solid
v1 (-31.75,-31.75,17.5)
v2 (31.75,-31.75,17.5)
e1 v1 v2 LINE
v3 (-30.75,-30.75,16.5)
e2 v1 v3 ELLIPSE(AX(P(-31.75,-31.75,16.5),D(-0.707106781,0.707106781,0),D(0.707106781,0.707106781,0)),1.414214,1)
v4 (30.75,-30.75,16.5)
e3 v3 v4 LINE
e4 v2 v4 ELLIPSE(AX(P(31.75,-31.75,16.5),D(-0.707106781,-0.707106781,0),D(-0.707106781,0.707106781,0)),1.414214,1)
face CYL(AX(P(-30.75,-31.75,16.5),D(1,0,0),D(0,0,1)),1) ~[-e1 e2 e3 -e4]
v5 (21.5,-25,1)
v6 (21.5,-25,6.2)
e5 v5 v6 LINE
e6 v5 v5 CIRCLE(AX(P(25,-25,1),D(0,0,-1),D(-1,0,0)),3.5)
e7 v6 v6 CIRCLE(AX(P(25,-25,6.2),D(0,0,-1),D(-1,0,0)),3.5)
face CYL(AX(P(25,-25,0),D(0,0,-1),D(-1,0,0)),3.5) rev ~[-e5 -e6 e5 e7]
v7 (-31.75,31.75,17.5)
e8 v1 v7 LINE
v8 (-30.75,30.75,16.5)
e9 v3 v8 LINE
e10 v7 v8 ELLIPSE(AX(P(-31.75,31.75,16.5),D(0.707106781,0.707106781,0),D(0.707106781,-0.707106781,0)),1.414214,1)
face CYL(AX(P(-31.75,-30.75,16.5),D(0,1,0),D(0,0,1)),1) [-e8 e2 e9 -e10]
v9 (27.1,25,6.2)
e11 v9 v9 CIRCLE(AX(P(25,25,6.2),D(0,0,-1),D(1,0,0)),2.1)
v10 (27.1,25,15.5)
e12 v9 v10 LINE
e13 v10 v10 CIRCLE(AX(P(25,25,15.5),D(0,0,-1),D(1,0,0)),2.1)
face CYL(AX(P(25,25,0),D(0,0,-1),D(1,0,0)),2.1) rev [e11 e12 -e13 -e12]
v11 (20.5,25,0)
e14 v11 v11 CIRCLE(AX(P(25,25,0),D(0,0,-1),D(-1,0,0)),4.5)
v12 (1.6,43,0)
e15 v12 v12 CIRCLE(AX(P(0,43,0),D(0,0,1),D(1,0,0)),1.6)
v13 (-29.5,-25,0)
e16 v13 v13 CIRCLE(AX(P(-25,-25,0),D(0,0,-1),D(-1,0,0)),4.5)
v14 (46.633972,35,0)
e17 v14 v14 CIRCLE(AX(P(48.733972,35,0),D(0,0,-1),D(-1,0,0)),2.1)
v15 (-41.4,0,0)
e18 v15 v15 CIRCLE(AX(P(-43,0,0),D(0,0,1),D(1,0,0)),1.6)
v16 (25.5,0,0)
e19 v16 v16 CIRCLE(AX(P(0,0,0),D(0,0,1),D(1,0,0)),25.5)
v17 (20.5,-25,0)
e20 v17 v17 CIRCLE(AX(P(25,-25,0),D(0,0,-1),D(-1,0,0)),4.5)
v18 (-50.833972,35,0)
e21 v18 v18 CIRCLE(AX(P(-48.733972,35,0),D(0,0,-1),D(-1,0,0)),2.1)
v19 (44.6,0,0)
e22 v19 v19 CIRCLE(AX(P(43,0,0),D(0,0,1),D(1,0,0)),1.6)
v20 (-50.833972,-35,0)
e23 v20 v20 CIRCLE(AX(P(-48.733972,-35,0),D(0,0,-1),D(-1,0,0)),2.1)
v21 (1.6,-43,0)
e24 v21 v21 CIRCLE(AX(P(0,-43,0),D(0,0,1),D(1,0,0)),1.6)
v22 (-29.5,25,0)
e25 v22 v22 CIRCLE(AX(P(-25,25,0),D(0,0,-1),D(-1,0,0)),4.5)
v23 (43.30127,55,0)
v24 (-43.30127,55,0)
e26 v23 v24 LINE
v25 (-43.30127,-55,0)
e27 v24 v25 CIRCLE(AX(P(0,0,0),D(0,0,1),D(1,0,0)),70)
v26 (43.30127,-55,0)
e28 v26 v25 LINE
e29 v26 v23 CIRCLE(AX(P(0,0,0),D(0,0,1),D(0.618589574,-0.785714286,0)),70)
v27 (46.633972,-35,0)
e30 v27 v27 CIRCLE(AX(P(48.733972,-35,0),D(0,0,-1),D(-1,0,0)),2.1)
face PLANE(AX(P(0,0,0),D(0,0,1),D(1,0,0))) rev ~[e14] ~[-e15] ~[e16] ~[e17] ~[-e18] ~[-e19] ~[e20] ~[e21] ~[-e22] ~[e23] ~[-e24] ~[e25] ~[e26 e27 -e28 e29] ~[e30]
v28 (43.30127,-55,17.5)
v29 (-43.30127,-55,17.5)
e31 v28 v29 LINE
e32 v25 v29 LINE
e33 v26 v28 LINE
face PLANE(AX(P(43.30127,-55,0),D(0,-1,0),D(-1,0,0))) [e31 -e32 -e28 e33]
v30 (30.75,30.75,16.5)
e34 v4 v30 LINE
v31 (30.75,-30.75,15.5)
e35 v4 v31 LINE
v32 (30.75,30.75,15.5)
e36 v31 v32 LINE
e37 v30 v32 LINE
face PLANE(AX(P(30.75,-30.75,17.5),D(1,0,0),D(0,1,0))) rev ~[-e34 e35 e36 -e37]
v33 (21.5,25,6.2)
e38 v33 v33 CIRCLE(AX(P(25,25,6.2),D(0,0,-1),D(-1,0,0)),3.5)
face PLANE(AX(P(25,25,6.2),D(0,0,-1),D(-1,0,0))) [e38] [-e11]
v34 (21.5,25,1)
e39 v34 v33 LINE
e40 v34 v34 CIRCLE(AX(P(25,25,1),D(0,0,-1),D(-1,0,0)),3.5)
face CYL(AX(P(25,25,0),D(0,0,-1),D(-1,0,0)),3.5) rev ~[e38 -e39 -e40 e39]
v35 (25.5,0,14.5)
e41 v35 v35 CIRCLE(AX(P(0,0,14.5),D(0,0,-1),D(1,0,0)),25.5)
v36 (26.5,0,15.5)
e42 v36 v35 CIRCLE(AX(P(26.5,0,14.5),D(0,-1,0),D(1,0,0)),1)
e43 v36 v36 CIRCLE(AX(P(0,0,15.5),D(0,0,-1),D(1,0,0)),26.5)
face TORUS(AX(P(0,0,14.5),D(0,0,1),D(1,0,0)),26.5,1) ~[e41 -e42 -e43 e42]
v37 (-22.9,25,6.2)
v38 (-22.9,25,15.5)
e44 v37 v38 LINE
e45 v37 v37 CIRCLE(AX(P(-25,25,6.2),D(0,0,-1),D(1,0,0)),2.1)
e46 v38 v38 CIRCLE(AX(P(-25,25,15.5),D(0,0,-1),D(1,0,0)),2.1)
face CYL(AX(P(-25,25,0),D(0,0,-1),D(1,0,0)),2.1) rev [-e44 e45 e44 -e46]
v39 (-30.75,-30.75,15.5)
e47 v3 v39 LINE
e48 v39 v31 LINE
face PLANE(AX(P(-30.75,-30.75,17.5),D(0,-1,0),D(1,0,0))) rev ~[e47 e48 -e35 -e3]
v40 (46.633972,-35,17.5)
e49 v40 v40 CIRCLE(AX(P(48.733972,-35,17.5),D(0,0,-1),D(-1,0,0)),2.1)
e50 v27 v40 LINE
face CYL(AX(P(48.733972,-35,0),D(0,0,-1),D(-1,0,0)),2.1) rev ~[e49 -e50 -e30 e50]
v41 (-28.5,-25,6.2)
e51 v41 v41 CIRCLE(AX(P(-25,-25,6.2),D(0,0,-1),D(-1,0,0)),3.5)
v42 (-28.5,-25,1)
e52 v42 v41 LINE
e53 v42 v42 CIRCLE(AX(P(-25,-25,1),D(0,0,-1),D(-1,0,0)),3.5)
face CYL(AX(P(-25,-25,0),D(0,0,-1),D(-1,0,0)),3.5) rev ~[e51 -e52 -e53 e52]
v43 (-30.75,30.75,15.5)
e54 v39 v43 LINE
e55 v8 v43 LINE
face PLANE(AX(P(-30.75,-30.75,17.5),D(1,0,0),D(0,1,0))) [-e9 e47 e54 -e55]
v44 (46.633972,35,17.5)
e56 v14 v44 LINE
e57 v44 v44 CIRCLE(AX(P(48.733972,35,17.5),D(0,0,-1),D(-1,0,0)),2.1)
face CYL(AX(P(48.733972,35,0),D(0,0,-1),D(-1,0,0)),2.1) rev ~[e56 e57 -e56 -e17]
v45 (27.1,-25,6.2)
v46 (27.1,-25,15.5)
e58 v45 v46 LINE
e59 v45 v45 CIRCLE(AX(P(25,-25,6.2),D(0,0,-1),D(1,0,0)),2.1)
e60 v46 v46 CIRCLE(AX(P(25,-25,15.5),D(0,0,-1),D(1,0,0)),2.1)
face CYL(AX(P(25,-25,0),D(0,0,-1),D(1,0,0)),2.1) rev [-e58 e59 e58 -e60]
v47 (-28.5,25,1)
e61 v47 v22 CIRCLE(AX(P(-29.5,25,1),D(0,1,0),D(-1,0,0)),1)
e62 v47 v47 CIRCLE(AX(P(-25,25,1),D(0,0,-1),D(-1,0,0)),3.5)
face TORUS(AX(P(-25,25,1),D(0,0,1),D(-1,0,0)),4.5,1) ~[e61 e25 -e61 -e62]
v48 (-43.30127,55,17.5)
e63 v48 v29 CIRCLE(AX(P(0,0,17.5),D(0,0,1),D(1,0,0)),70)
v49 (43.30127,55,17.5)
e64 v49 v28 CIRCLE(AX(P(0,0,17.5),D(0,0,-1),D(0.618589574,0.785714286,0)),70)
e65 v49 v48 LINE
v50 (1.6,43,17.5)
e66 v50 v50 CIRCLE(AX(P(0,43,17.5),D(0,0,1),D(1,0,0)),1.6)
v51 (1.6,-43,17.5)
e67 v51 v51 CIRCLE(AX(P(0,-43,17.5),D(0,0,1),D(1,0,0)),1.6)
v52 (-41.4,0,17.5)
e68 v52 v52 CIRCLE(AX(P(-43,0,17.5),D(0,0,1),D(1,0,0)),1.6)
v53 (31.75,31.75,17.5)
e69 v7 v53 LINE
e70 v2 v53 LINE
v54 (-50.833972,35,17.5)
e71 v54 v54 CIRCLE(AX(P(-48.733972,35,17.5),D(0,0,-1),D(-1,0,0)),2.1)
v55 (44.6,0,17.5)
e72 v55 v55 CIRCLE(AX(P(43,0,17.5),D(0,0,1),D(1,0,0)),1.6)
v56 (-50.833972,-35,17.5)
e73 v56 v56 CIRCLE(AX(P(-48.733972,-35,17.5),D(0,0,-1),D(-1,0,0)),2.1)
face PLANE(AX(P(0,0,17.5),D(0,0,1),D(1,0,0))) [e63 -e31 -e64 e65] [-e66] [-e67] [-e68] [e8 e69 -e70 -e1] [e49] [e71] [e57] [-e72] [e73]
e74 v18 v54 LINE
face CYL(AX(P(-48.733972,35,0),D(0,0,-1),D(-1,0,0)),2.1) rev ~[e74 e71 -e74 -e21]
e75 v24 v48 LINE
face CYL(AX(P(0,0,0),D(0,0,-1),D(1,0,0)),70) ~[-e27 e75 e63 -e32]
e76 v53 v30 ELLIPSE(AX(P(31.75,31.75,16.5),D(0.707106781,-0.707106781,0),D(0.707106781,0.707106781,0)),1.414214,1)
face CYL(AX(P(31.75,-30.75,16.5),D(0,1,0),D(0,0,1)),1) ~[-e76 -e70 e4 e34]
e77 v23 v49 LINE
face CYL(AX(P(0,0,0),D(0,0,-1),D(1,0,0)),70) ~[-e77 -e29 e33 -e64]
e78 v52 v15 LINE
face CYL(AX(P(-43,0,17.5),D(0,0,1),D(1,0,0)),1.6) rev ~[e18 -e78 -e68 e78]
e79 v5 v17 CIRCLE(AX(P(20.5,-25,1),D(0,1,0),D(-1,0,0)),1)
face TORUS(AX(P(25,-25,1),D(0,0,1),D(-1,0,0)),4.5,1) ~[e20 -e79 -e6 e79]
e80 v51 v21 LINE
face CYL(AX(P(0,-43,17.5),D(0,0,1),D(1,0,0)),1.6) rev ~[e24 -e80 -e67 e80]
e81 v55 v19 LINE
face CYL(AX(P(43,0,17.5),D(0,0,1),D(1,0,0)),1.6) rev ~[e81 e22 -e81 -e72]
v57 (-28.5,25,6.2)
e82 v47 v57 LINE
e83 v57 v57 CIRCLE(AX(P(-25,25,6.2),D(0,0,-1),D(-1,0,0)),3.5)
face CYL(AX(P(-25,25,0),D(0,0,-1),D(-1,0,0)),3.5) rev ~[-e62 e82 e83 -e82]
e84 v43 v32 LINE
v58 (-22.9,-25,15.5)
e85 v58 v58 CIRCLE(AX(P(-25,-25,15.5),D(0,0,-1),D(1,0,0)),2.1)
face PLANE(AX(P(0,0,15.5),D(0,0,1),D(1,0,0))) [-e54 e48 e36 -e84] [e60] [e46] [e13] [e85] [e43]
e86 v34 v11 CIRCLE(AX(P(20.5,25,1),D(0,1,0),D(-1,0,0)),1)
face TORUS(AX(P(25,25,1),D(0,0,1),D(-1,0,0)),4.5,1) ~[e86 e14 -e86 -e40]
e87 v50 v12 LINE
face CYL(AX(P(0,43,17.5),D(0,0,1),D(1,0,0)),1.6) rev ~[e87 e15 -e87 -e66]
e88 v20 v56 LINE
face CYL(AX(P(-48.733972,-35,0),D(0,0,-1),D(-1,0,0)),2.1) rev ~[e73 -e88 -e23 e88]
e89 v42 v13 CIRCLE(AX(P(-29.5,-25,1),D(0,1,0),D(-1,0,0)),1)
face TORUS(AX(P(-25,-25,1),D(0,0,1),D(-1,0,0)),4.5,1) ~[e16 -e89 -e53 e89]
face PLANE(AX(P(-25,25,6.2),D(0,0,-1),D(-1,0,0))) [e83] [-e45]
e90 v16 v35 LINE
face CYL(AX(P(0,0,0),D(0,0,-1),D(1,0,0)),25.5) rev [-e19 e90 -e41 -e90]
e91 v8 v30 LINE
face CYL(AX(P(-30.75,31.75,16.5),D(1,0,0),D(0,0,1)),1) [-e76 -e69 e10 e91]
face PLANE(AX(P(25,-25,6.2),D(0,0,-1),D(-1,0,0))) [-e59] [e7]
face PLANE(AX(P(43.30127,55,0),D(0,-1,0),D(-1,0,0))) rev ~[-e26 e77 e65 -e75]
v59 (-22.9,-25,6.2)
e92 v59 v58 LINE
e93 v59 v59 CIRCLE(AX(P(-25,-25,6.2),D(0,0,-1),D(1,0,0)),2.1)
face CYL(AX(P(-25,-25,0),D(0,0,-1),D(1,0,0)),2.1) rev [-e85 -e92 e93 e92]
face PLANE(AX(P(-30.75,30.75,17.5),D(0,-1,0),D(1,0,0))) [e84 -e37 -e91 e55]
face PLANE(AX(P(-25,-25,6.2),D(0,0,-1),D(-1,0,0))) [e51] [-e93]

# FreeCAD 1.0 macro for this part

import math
import FreeCAD as App
import Part
import Sketcher


def edges_at(feature, points):
    """Names of the edges that pass closest to the given points."""
    edges = feature.Shape.Edges
    near = lambda p: min(range(len(edges)), key=lambda i: edges[i].distToShape(Part.Vertex(*p))[0])
    return sorted({f"Edge{near(p) + 1}" for p in points})


def add_polygon(sketch, points):
    """Adds a closed chain of lines whose ends are joined by coincident constraints."""
    first, n = sketch.GeometryCount, len(points)
    for a, b in zip(points, points[1:] + points[:1]):
        sketch.addGeometry(Part.LineSegment(App.Vector(*a, 0), App.Vector(*b, 0)), False)
    for i in range(n):
        sketch.addConstraint(Sketcher.Constraint("Coincident", first + i, 2, first + (i + 1) % n, 1))

doc = App.newDocument("Part")
body = doc.addObject("PartDesign::Body", "Body")

# Sketch on XY plane
sketch1 = doc.addObject("Sketcher::SketchObject", "Sketch")
body.addObject(sketch1)
sketch1.AttachmentSupport = (doc.XY_Plane, [""])
sketch1.MapMode = "FlatFace"
sketch1.addGeometry([
    Part.Circle(App.Vector(0, 0, 0), App.Vector(0, 0, 1), 70),  # 0
    Part.Circle(App.Vector(-25, -25, 0), App.Vector(0, 0, 1), 2.1),  # 1
    Part.Circle(App.Vector(25, -25, 0), App.Vector(0, 0, 1), 2.1),  # 2
    Part.Circle(App.Vector(-25, 25, 0), App.Vector(0, 0, 1), 2.1),  # 3
    Part.Circle(App.Vector(0, 0, 0), App.Vector(0, 0, 1), 25.5),  # 4
    Part.Circle(App.Vector(25, 25, 0), App.Vector(0, 0, 1), 2.1),  # 5
], False)
sketch1.addConstraint([
    Sketcher.Constraint("Coincident", 0, 3, -1, 1),
    Sketcher.Constraint("Coincident", 4, 3, -1, 1),
    Sketcher.Constraint("Equal", 1, 2),
    Sketcher.Constraint("Equal", 2, 3),
    Sketcher.Constraint("Equal", 3, 5),
    Sketcher.Constraint("Symmetric", 2, 3, 3, 3, -1, 1),
    Sketcher.Constraint("Symmetric", 1, 3, 5, 3, -1, 1),
    Sketcher.Constraint("Symmetric", 1, 3, 2, 3, -2),
    Sketcher.Constraint("Diameter", 0, 140.0),
    Sketcher.Constraint("Diameter", 4, 51.0),
    Sketcher.Constraint("Diameter", 1, 4.2),
    Sketcher.Constraint("DistanceX", 1, 3, -1, 1, 25.0),
    Sketcher.Constraint("DistanceY", 1, 3, -1, 1, 25.0),
])
pad1 = doc.addObject("PartDesign::Pad", "Pad")
body.addObject(pad1)
pad1.Profile = sketch1
pad1.Length = 17.5

# Sketch on XY plane
sketch2 = doc.addObject("Sketcher::SketchObject", "Sketch001")
body.addObject(sketch2)
sketch2.AttachmentSupport = (doc.XY_Plane, [""])
sketch2.MapMode = "FlatFace"
sketch2.AttachmentOffset = App.Placement(App.Vector(0, 0, 17.5), App.Rotation())
add_polygon(sketch2, [(-31, 31), (-31, -31), (31, -31), (31, 31)])  # lines 0-3
sketch2.addConstraint([
    Sketcher.Constraint("Vertical", 0),
    Sketcher.Constraint("Horizontal", 1),
    Sketcher.Constraint("Vertical", 2),
    Sketcher.Constraint("Horizontal", 3),
    Sketcher.Constraint("Symmetric", 0, 2, 2, 2, -1, 1),
    Sketcher.Constraint("Equal", 3, 0),
    Sketcher.Constraint("DistanceX", 1, 1, 1, 2, 61.5),
])
pocket1 = doc.addObject("PartDesign::Pocket", "Pocket")
body.addObject(pocket1)
pocket1.Profile = sketch2
pocket1.Length = 2

# Sketch on XY plane
sketch3 = doc.addObject("Sketcher::SketchObject", "Sketch002")
body.addObject(sketch3)
sketch3.AttachmentSupport = (doc.XY_Plane, [""])
sketch3.MapMode = "FlatFace"
sketch3.AttachmentOffset = App.Placement(App.Vector(0, 0, 17.5), App.Rotation())
sketch3.addGeometry([
    Part.Circle(App.Vector(0, 43, 0), App.Vector(0, 0, 1), 1.6),
    Part.Circle(App.Vector(-43, 0, 0), App.Vector(0, 0, 1), 1.6),
    Part.Circle(App.Vector(43, 0, 0), App.Vector(0, 0, 1), 1.6),
    Part.Circle(App.Vector(0, -43, 0), App.Vector(0, 0, 1), 1.6),
], False)
sketch3.addConstraint([
    Sketcher.Constraint("Equal", 0, 1),
    Sketcher.Constraint("Equal", 1, 2),
    Sketcher.Constraint("Equal", 2, 3),
    Sketcher.Constraint("Symmetric", 1, 3, 2, 3, -1, 1),
    Sketcher.Constraint("Symmetric", 0, 3, 3, 3, -1, 1),
    Sketcher.Constraint("PointOnObject", 0, 3, -2),
    Sketcher.Constraint("PointOnObject", 1, 3, -1),
    Sketcher.Constraint("Diameter", 0, 3.2),
    Sketcher.Constraint("DistanceY", -1, 1, 0, 3, 43.0),
    Sketcher.Constraint("DistanceX", 1, 3, -1, 1, 43.0),
])
pocket2 = doc.addObject("PartDesign::Pocket", "Pocket001")
body.addObject(pocket2)
pocket2.Profile = sketch3
pocket2.Type = "ThroughAll"

# Sketch on XY plane
sketch4 = doc.addObject("Sketcher::SketchObject", "Sketch003")
body.addObject(sketch4)
sketch4.AttachmentSupport = (doc.XY_Plane, [""])
sketch4.MapMode = "FlatFace"
sketch4.addGeometry([
    Part.Circle(App.Vector(25, 25, 0), App.Vector(0, 0, 1), 3.5),
    Part.Circle(App.Vector(-25, 25, 0), App.Vector(0, 0, 1), 3.5),
    Part.Circle(App.Vector(-25, -25, 0), App.Vector(0, 0, 1), 3.5),
    Part.Circle(App.Vector(25, -25, 0), App.Vector(0, 0, 1), 3.5),
], False)
sketch4.addConstraint([
    Sketcher.Constraint("Equal", 0, 1),
    Sketcher.Constraint("Equal", 1, 2),
    Sketcher.Constraint("Equal", 2, 3),
    Sketcher.Constraint("Symmetric", 0, 3, 2, 3, -1, 1),
    Sketcher.Constraint("Symmetric", 1, 3, 3, 3, -1, 1),
    Sketcher.Constraint("Symmetric", 0, 3, 1, 3, -2),
    Sketcher.Constraint("Diameter", 0, 7.0),
    Sketcher.Constraint("DistanceX", -1, 1, 0, 3, 25.0),
    Sketcher.Constraint("DistanceY", -1, 1, 0, 3, 25.0),
])
pocket3 = doc.addObject("PartDesign::Pocket", "Pocket002")
body.addObject(pocket3)
pocket3.Profile = sketch4
pocket3.Length = 6.2
pocket3.Reversed = True

# Sketch on XY plane
sketch5 = doc.addObject("Sketcher::SketchObject", "Sketch004")
body.addObject(sketch5)
sketch5.AttachmentSupport = (doc.XY_Plane, [""])
sketch5.MapMode = "FlatFace"
sketch5.addGeometry([
    Part.Circle(App.Vector(48.7, 35, 0), App.Vector(0, 0, 1), 2.1),  # 0
    Part.Circle(App.Vector(-48.7, 35, 0), App.Vector(0, 0, 1), 2.1),  # 1
    Part.Circle(App.Vector(-48.7, -35, 0), App.Vector(0, 0, 1), 2.1),  # 2
    Part.Circle(App.Vector(48.7, -35, 0), App.Vector(0, 0, 1), 2.1),  # 3
    Part.LineSegment(App.Vector(-43.3, -55, 0), App.Vector(43.3, -55, 0)),  # 4
    Part.ArcOfCircle(Part.Circle(App.Vector(0, 0, 0), App.Vector(0, 0, 1), 70), math.radians(-128), math.radians(-52)),  # 5
    Part.LineSegment(App.Vector(43.3, 55, 0), App.Vector(-43.3, 55, 0)),  # 6
    Part.ArcOfCircle(Part.Circle(App.Vector(0, 0, 0), App.Vector(0, 0, 1), 70), math.radians(52), math.radians(128)),  # 7
], False)
sketch5.addConstraint([
    Sketcher.Constraint("Coincident", 4, 1, 5, 1),
    Sketcher.Constraint("Coincident", 5, 2, 4, 2),
    Sketcher.Constraint("Coincident", 6, 1, 7, 1),
    Sketcher.Constraint("Coincident", 7, 2, 6, 2),
    Sketcher.Constraint("Horizontal", 4),
    Sketcher.Constraint("Horizontal", 6),
    Sketcher.Constraint("Coincident", 5, 3, -1, 1),
    Sketcher.Constraint("Coincident", 7, 3, -1, 1),
    Sketcher.Constraint("Equal", 0, 1),
    Sketcher.Constraint("Equal", 1, 2),
    Sketcher.Constraint("Equal", 2, 3),
    Sketcher.Constraint("Equal", 5, 7),
    Sketcher.Constraint("Symmetric", 0, 3, 2, 3, -1, 1),
    Sketcher.Constraint("Symmetric", 1, 3, 3, 3, -1, 1),
    Sketcher.Constraint("Symmetric", 0, 3, 1, 3, -2),
    Sketcher.Constraint("Vertical", 5, 2, 6, 1),
    Sketcher.Constraint("Radius", 5, 70.0),
    Sketcher.Constraint("Diameter", 0, 4.2),
    Sketcher.Constraint("DistanceY", -1, 1, 0, 3, 35.0),
    Sketcher.Constraint("DistanceY", 4, 1, -1, 1, 55.0),
    Sketcher.Constraint("DistanceX", 2, 3, 4, 1, 5.432702),
])
pocket4 = doc.addObject("PartDesign::Pocket", "Pocket003")
body.addObject(pocket4)
pocket4.Profile = sketch5
pocket4.Length = 17.5
pocket4.Reversed = True
doc.recompute()

fillet = doc.addObject("PartDesign::Fillet", "Fillet")
body.addObject(fillet)
fillet.Base = (pocket4, edges_at(pocket4, [
    (-25.5, 0, 15.5),
    (30.75, 0, 17.5),
    (0, 30.75, 17.5),
    (-30.75, 0, 17.5),
    (0, -30.75, 17.5),
    (28.5, 25, 0),
    (-21.5, 25, 0),
    (-21.5, -25, 0),
    (28.5, -25, 0),
]))
fillet.Radius = 1

doc.recompute()
